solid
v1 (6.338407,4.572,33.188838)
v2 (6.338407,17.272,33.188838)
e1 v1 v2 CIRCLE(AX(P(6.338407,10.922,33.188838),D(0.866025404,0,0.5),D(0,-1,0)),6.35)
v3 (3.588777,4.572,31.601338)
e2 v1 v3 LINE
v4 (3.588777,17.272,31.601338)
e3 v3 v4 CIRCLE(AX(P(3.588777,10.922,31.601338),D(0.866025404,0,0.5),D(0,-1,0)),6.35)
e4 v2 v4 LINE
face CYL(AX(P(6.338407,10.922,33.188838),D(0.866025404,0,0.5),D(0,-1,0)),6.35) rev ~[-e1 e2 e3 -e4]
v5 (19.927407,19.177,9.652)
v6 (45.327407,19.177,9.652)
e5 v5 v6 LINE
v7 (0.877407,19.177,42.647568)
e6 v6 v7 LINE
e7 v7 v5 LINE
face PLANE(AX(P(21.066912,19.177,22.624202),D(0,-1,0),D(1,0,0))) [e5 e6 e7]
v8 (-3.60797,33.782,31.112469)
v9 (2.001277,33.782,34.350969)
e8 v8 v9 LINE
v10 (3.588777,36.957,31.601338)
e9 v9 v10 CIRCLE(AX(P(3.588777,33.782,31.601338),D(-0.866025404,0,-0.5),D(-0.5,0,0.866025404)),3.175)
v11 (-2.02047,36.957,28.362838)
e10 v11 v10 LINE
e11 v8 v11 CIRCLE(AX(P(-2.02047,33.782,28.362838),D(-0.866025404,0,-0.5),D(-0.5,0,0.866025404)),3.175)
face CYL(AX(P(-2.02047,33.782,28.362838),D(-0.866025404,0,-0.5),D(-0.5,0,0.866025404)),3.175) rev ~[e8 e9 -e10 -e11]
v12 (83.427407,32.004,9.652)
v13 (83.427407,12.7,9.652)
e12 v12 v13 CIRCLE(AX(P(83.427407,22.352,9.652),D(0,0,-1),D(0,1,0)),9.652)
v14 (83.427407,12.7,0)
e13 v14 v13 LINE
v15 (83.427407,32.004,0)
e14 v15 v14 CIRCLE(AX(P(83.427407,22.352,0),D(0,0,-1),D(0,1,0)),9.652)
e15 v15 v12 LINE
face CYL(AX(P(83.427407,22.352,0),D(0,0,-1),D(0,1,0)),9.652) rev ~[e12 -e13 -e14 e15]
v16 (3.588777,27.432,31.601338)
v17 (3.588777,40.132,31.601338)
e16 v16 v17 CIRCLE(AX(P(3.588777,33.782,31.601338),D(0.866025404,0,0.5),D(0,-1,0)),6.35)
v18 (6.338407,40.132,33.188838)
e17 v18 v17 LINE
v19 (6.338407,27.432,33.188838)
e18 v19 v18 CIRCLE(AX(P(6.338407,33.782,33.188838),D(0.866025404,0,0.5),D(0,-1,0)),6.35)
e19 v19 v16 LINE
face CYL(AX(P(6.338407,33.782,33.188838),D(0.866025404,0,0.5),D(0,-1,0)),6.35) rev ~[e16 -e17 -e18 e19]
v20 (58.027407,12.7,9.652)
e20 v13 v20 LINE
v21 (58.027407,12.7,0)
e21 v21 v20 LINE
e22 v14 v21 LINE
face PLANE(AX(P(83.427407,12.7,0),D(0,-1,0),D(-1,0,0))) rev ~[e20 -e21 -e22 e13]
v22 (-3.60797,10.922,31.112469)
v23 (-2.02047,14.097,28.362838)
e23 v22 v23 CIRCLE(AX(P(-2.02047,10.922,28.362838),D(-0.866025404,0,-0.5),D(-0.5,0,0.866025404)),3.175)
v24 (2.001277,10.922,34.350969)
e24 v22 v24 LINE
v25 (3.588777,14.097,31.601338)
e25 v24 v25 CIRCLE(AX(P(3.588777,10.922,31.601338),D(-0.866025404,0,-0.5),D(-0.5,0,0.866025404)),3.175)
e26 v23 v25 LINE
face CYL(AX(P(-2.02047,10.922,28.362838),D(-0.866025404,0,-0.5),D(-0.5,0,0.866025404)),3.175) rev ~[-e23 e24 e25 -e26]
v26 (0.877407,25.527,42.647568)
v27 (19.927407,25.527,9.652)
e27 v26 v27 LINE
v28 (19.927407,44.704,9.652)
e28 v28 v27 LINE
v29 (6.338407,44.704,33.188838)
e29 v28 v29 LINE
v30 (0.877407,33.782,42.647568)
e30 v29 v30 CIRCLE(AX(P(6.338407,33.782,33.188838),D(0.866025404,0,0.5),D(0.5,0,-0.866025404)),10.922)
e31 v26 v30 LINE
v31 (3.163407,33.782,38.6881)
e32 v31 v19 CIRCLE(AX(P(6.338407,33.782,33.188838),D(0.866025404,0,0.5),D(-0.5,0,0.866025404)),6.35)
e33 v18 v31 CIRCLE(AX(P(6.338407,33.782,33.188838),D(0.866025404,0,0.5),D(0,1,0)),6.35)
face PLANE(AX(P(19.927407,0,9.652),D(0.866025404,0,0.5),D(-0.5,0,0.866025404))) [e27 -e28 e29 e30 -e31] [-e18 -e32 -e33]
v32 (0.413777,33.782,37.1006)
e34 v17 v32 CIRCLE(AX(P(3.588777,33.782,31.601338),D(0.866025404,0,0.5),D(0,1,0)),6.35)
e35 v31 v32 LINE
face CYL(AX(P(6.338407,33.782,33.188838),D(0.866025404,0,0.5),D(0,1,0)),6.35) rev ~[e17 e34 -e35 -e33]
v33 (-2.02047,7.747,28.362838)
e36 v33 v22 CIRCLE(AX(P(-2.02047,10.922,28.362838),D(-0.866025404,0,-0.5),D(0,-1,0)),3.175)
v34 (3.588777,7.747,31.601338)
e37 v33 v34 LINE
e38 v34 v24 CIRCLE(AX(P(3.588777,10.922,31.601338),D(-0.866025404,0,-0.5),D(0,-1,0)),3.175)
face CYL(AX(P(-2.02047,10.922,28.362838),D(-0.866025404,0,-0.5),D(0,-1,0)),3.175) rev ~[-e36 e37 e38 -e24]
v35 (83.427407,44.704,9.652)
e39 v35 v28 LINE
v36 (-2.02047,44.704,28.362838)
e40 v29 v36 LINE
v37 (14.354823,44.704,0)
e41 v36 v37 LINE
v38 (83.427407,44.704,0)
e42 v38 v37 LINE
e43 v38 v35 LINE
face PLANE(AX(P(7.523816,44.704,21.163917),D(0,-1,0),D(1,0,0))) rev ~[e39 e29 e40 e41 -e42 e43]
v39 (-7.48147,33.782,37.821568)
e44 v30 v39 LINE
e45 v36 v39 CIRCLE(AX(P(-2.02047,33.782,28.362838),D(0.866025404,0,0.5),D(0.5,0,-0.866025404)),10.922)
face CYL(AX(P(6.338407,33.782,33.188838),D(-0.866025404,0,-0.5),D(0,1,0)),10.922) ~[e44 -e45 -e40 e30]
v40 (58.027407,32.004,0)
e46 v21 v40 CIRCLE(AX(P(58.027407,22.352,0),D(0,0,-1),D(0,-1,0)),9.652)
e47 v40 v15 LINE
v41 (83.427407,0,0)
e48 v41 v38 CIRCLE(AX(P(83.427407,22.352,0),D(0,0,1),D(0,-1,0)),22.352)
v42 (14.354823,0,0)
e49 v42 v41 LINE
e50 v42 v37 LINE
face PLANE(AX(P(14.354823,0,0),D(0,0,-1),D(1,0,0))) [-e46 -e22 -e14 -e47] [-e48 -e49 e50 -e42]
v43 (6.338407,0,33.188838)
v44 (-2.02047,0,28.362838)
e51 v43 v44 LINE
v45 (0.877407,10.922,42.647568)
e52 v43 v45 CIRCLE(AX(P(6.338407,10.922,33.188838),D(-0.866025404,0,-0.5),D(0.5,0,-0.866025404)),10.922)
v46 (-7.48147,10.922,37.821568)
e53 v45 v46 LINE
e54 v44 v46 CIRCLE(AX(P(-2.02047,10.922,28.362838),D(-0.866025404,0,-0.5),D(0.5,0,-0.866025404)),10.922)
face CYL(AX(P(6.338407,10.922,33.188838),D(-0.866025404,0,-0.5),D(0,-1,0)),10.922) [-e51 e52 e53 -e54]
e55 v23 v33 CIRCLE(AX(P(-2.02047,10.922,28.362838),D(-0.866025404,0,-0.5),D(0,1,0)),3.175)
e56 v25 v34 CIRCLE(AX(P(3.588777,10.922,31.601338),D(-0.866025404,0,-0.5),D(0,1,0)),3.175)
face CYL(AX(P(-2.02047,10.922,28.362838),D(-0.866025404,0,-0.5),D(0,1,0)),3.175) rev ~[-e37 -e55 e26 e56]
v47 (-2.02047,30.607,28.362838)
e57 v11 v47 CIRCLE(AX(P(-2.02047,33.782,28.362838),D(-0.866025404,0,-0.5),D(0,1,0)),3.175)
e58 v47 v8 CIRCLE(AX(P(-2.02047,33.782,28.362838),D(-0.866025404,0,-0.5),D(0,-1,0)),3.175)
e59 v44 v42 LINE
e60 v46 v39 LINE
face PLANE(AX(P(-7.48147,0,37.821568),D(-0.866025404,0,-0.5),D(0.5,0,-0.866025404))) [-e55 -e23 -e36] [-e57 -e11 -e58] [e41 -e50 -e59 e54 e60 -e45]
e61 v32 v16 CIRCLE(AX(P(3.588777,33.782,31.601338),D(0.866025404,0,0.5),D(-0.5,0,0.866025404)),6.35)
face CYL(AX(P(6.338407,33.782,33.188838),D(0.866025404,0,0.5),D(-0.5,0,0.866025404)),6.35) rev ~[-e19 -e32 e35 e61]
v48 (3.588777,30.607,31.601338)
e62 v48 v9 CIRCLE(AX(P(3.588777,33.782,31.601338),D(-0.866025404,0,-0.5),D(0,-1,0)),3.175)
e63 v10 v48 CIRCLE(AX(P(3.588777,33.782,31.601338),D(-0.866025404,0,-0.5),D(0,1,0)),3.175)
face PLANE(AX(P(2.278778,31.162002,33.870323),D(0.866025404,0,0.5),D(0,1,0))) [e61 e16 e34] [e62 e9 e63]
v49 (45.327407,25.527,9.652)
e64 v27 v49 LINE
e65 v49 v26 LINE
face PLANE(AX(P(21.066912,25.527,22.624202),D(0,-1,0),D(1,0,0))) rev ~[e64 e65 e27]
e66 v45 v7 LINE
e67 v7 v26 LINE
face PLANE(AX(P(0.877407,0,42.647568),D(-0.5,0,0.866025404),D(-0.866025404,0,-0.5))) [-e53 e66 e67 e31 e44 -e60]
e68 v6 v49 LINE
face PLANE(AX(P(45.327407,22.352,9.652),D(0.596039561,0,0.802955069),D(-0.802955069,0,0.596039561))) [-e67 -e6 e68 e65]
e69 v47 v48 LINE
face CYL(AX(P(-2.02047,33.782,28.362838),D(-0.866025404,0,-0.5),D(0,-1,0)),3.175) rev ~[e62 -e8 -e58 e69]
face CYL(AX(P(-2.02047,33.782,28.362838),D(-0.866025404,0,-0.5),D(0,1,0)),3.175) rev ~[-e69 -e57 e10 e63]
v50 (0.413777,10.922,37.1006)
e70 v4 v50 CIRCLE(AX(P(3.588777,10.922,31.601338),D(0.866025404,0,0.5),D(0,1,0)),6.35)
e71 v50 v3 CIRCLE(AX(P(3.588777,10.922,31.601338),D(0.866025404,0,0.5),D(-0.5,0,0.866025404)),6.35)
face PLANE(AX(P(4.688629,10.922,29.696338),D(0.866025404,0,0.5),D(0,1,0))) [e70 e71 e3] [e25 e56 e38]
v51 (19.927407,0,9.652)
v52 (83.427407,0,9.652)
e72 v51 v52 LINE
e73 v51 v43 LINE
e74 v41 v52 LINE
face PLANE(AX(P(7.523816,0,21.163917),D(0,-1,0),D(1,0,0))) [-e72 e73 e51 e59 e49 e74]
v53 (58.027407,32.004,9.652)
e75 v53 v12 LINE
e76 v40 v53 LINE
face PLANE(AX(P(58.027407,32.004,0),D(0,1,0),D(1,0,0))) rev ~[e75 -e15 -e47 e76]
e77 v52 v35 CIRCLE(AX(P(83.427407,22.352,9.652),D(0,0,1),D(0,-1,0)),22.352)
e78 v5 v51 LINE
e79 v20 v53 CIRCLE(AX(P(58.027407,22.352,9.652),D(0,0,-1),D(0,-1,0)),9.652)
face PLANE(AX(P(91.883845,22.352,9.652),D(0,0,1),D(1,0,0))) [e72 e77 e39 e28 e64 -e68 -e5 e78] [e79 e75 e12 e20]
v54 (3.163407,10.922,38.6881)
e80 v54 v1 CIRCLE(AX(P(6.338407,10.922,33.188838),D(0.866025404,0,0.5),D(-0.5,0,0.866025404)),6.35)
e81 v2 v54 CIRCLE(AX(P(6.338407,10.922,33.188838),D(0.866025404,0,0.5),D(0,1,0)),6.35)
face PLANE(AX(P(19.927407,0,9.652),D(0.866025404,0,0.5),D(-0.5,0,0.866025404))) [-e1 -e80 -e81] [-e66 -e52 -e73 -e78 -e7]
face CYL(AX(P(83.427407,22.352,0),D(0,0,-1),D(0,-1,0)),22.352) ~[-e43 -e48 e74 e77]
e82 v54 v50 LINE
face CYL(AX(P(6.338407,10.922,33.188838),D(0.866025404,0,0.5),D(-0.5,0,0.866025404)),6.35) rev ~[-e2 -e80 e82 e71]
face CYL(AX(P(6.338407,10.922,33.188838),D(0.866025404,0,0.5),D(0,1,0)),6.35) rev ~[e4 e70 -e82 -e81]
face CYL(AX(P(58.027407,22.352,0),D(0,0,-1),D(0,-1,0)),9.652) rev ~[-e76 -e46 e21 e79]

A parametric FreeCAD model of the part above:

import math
import FreeCAD as App
import Part
import Sketcher
Q = App.Units.Quantity


def edges_at(feature, points):
    """Names of the edges that pass closest to the given points."""
    edges = feature.Shape.Edges
    near = lambda p: min(range(len(edges)), key=lambda i: edges[i].distToShape(Part.Vertex(*p))[0])
    return sorted({f"Edge{near(p) + 1}" for p in points})


def add_polygon(sketch, points):
    """Adds a closed chain of lines whose ends are joined by coincident constraints."""
    first, n = sketch.GeometryCount, len(points)
    for a, b in zip(points, points[1:] + points[:1]):
        sketch.addGeometry(Part.LineSegment(App.Vector(*a, 0), App.Vector(*b, 0)), False)
    for i in range(n):
        sketch.addConstraint(Sketcher.Constraint("Coincident", first + i, 2, first + (i + 1) % n, 1))

doc = App.newDocument("Part")
body = doc.addObject("PartDesign::Body", "Body")

# Sketch on XY plane
sketch1 = doc.addObject("Sketcher::SketchObject", "Sketch")
body.addObject(sketch1)
sketch1.AttachmentSupport = (doc.XY_Plane, [""])
sketch1.MapMode = "FlatFace"
sketch1.addGeometry([
    Part.LineSegment(App.Vector(83, 45, 0), App.Vector(20, 45, 0)),  # 0
    Part.LineSegment(App.Vector(20, 45, 0), App.Vector(20, 0, 0)),  # 1
    Part.LineSegment(App.Vector(20, 0, 0), App.Vector(83, 0, 0)),  # 2
    Part.LineSegment(App.Vector(83, 0, 0), App.Vector(83, 13, 0)),  # 3
    Part.LineSegment(App.Vector(83, 13, 0), App.Vector(58, 13, 0)),  # 4
    Part.ArcOfCircle(Part.Circle(App.Vector(58, 22, 0), App.Vector(0, 0, 1), 10), math.radians(90), math.radians(270)),  # 5
    Part.LineSegment(App.Vector(58, 32, 0), App.Vector(83, 32, 0)),  # 6
    Part.LineSegment(App.Vector(83, 32, 0), App.Vector(83, 45, 0)),  # 7
], False)
sketch1.addConstraint([
    Sketcher.Constraint("Coincident", 0, 2, 1, 1),
    Sketcher.Constraint("Coincident", 1, 2, 2, 1),
    Sketcher.Constraint("Coincident", 2, 2, 3, 1),
    Sketcher.Constraint("Coincident", 3, 2, 4, 1),
    Sketcher.Constraint("Tangent", 4, 2, 5, 2),
    Sketcher.Constraint("Tangent", 5, 1, 6, 1),
    Sketcher.Constraint("Coincident", 6, 2, 7, 1),
    Sketcher.Constraint("Coincident", 7, 2, 0, 1),
    Sketcher.Constraint("Horizontal", 0),
    Sketcher.Constraint("Vertical", 1),
    Sketcher.Constraint("Horizontal", 2),
    Sketcher.Constraint("Vertical", 3),
    Sketcher.Constraint("Horizontal", 4),
    Sketcher.Constraint("Horizontal", 6),
    Sketcher.Constraint("Vertical", 7),
    Sketcher.Constraint("PointOnObject", 1, 2, -1),
    Sketcher.Constraint("Vertical", 3, 2, 6, 2),
    Sketcher.Constraint("Equal", 3, 7),
    Sketcher.Constraint("DistanceX", 4, 2, 4, 1, Q("1 in")),
    Sketcher.Constraint("Radius", 5, Q("0.38 in")),
    Sketcher.Constraint("DistanceX", 0, 2, 0, 1, Q("2.5 in")),
    Sketcher.Constraint("DistanceY", 3, 1, 3, 2, Q("0.5 in")),
    Sketcher.Constraint("DistanceX", -1, 1, 5, 3, Q("58.027407 mm")),
])
pad1 = doc.addObject("PartDesign::Pad", "Pad")
body.addObject(pad1)
pad1.Profile = sketch1
pad1.Length = Q("0.38 in")

# Sketch on XY plane
sketch2 = doc.addObject("Sketcher::SketchObject", "Sketch001")
body.addObject(sketch2)
sketch2.AttachmentSupport = (doc.XY_Plane, [""])
sketch2.MapMode = "FlatFace"
sketch2.addGeometry([
    Part.ArcOfCircle(Part.Circle(App.Vector(83, 22, 0), App.Vector(0, 0, 1), 22), math.radians(-90), math.radians(90)),
    Part.LineSegment(App.Vector(83, 45, 0), App.Vector(83, 32, 0)),
    Part.ArcOfCircle(Part.Circle(App.Vector(83, 22, 0), App.Vector(0, 0, 1), 10), math.radians(-90), math.radians(90)),
    Part.LineSegment(App.Vector(83, 13, 0), App.Vector(83, 0, 0)),
], False)
sketch2.addConstraint([
    Sketcher.Constraint("Coincident", 0, 2, 1, 1),
    Sketcher.Constraint("Coincident", 1, 2, 2, 2),
    Sketcher.Constraint("Coincident", 2, 1, 3, 1),
    Sketcher.Constraint("Coincident", 3, 2, 0, 1),
    Sketcher.Constraint("Vertical", 1),
    Sketcher.Constraint("Vertical", 3),
    Sketcher.Constraint("Coincident", 2, 3, 0, 3),
    Sketcher.Constraint("PointOnObject", 3, 2, -1),
    Sketcher.Constraint("Vertical", 2, 3, 0, 2),
    Sketcher.Constraint("Vertical", 1, 2, 2, 1),
    Sketcher.Constraint("Radius", 0, Q("0.88 in")),
    Sketcher.Constraint("Radius", 2, Q("0.38 in")),
    Sketcher.Constraint("DistanceX", -1, 1, 0, 3, Q("83.427407 mm")),
])
pad2 = doc.addObject("PartDesign::Pad", "Pad001")
body.addObject(pad2)
pad2.Profile = sketch2
pad2.Length = Q("0.38 in")

# Sketch on XZ plane
sketch3 = doc.addObject("Sketcher::SketchObject", "Sketch002")
body.addObject(sketch3)
sketch3.AttachmentSupport = (doc.XZ_Plane, [""])
sketch3.MapMode = "FlatFace"
add_polygon(sketch3, [(20, 0), (20, 10), (1, 43), (-7, 38), (14, 0)])  # lines 0-4
sketch3.addConstraint([
    Sketcher.Constraint("Vertical", 0),
    Sketcher.Constraint("Horizontal", 4),
    Sketcher.Constraint("PointOnObject", 3, 2, -1),
    Sketcher.Constraint("Perpendicular", 1, 2),
    Sketcher.Constraint("Perpendicular", 2, 3),
    Sketcher.Constraint("Angle", 1, Q("120 deg")),
    Sketcher.Constraint("Distance", 1, Q("1.5 in")),
    Sketcher.Constraint("DistanceY", 0, 1, 0, 2, Q("0.38 in")),
    Sketcher.Constraint("Distance", 2, Q("0.38 in")),
    Sketcher.Constraint("DistanceX", 2, 2, -1, 1, Q("7.48147 mm")),
])
pad3 = doc.addObject("PartDesign::Pad", "Pad002")
body.addObject(pad3)
pad3.Profile = sketch3
pad3.Length = Q("1.76 in")
pad3.Reversed = True
doc.recompute()

fillet = doc.addObject("PartDesign::Fillet", "Fillet")
body.addObject(fillet)
fillet.Base = (pad3, edges_at(pad3, [(-3.302, 0, 40.235), (-3.302, 44.704, 40.235)]))
fillet.Radius = Q("0.43 in")

# Sketch on an angled plane
sketch4 = doc.addObject("Sketcher::SketchObject", "Sketch003")
body.addObject(sketch4)
sketch4.Placement = App.Placement(App.Vector(19.124994, 0, 11.041821), App.Rotation(App.Vector(0, 1, 0), App.Vector(-0.5, 0, 0.866025404), App.Vector(0.866025404, 0, 0.5), "ZXY"))
sketch4.addGeometry([
    Part.ArcOfCircle(Part.Circle(App.Vector(11, 26, 0), App.Vector(0, 0, 1), 6), math.radians(180), math.radians(360)),  # 0
    Part.ArcOfCircle(Part.Circle(App.Vector(11, 26, 0), App.Vector(0, 0, 1), 6), math.radians(0), math.radians(90)),  # 1
    Part.ArcOfCircle(Part.Circle(App.Vector(11, 26, 0), App.Vector(0, 0, 1), 6), math.radians(90), math.radians(180)),  # 2
    Part.ArcOfCircle(Part.Circle(App.Vector(34, 26, 0), App.Vector(0, 0, 1), 6), math.radians(90), math.radians(180)),  # 3
    Part.ArcOfCircle(Part.Circle(App.Vector(34, 26, 0), App.Vector(0, 0, 1), 6), math.radians(180), math.radians(360)),  # 4
    Part.ArcOfCircle(Part.Circle(App.Vector(34, 26, 0), App.Vector(0, 0, 1), 6), math.radians(0), math.radians(90)),  # 5
], False)
sketch4.addConstraint([
    Sketcher.Constraint("Tangent", 0, 2, 1, 1),
    Sketcher.Constraint("Tangent", 1, 2, 2, 1),
    Sketcher.Constraint("Tangent", 2, 2, 0, 1),
    Sketcher.Constraint("Tangent", 3, 2, 4, 1),
    Sketcher.Constraint("Tangent", 4, 2, 5, 1),
    Sketcher.Constraint("Tangent", 5, 2, 3, 1),
    Sketcher.Constraint("Equal", 2, 3),
    Sketcher.Constraint("Horizontal", 2, 3, 3, 3),
    Sketcher.Constraint("Horizontal", 5, 3, 0, 2),
    Sketcher.Constraint("Horizontal", 0, 2, 2, 2),
    Sketcher.Constraint("Horizontal", 2, 2, 3, 2),
    Sketcher.Constraint("Horizontal", 3, 2, 4, 2),
    Sketcher.Constraint("Vertical", 2, 3, 1, 2),
    Sketcher.Constraint("Vertical", 4, 3, 5, 2),
    Sketcher.Constraint("Radius", 0, Q("0.25 in")),
    Sketcher.Constraint("DistanceX", 0, 3, 3, 3, Q("0.9 in")),
    Sketcher.Constraint("DistanceX", -1, 1, 0, 3, Q("0.43 in")),
    Sketcher.Constraint("DistanceY", -1, 1, 0, 3, Q("25.573173 mm")),
])
pocket1 = doc.addObject("PartDesign::Pocket", "Pocket")
body.addObject(pocket1)
pocket1.Profile = sketch4
pocket1.Length = Q("0.125 in")

# Sketch on an angled plane
sketch5 = doc.addObject("Sketcher::SketchObject", "Sketch004")
body.addObject(sketch5)
sketch5.Placement = App.Placement(App.Vector(10.766117, 0, 6.215821), App.Rotation(App.Vector(0, -1, 0), App.Vector(-0.5, 0, 0.866025404), App.Vector(-0.866025404, 0, -0.5), "ZXY"))
sketch5.addGeometry([
    Part.ArcOfCircle(Part.Circle(App.Vector(-33.8, 25.6, 0), App.Vector(0, 0, 1), 3.2), math.radians(90), math.radians(180)),  # 0
    Part.ArcOfCircle(Part.Circle(App.Vector(-33.8, 25.6, 0), App.Vector(0, 0, 1), 3.2), math.radians(180), math.radians(360)),  # 1
    Part.ArcOfCircle(Part.Circle(App.Vector(-33.8, 25.6, 0), App.Vector(0, 0, 1), 3.2), math.radians(0), math.radians(90)),  # 2
    Part.ArcOfCircle(Part.Circle(App.Vector(-10.9, 25.6, 0), App.Vector(0, 0, 1), 3.2), math.radians(90), math.radians(180)),  # 3
    Part.ArcOfCircle(Part.Circle(App.Vector(-10.9, 25.6, 0), App.Vector(0, 0, 1), 3.2), math.radians(180), math.radians(360)),  # 4
    Part.ArcOfCircle(Part.Circle(App.Vector(-10.9, 25.6, 0), App.Vector(0, 0, 1), 3.2), math.radians(0), math.radians(90)),  # 5
], False)
sketch5.addConstraint([
    Sketcher.Constraint("Tangent", 0, 2, 1, 1),
    Sketcher.Constraint("Tangent", 1, 2, 2, 1),
    Sketcher.Constraint("Tangent", 2, 2, 0, 1),
    Sketcher.Constraint("Tangent", 3, 2, 4, 1),
    Sketcher.Constraint("Tangent", 4, 2, 5, 1),
    Sketcher.Constraint("Tangent", 5, 2, 3, 1),
    Sketcher.Constraint("Equal", 2, 3),
    Sketcher.Constraint("Horizontal", 2, 3, 3, 3),
    Sketcher.Constraint("Horizontal", 5, 3, 0, 2),
    Sketcher.Constraint("Horizontal", 0, 2, 1, 2),
    Sketcher.Constraint("Horizontal", 1, 2, 3, 2),
    Sketcher.Constraint("Horizontal", 3, 2, 4, 2),
    Sketcher.Constraint("Vertical", 1, 3, 2, 2),
    Sketcher.Constraint("Vertical", 4, 3, 5, 2),
    Sketcher.Constraint("Radius", 0, Q("0.125 in")),
    Sketcher.Constraint("DistanceX", 0, 3, 3, 3, Q("0.9 in")),
    Sketcher.Constraint("DistanceX", 0, 3, -1, 1, Q("1.33 in")),
    Sketcher.Constraint("DistanceY", -1, 1, 0, 3, Q("25.573173 mm")),
])
pocket2 = doc.addObject("PartDesign::Pocket", "Pocket001")
body.addObject(pocket2)
pocket2.Profile = sketch5
pocket2.Type = "ThroughAll"

# Sketch on XZ plane
sketch6 = doc.addObject("Sketcher::SketchObject", "Sketch005")
body.addObject(sketch6)
sketch6.AttachmentSupport = (doc.XZ_Plane, [""])
sketch6.MapMode = "FlatFace"
sketch6.AttachmentOffset = App.Placement(App.Vector(0, 0, -0.88 * 25.4), App.Rotation())
add_polygon(sketch6, [(1, 43), (20, 10), (45, 10)])  # lines 0-2
sketch6.addConstraint([
    Sketcher.Constraint("Horizontal", 1),
    Sketcher.Constraint("DistanceX", 1, 1, 1, 2, Q("1 in")),
    Sketcher.Constraint("Angle", 0, Q("-60 deg")),
    Sketcher.Constraint("Distance", 0, Q("1.5 in")),
    Sketcher.Constraint("DistanceY", -1, 1, 0, 2, Q("0.38 in")),
    Sketcher.Constraint("DistanceX", -1, 1, 0, 2, Q("19.927407 mm")),
])
pad4 = doc.addObject("PartDesign::Pad", "Pad003")
body.addObject(pad4)
pad4.Profile = sketch6
pad4.Length = Q("0.25 in")
pad4.Midplane = True

doc.recompute()
